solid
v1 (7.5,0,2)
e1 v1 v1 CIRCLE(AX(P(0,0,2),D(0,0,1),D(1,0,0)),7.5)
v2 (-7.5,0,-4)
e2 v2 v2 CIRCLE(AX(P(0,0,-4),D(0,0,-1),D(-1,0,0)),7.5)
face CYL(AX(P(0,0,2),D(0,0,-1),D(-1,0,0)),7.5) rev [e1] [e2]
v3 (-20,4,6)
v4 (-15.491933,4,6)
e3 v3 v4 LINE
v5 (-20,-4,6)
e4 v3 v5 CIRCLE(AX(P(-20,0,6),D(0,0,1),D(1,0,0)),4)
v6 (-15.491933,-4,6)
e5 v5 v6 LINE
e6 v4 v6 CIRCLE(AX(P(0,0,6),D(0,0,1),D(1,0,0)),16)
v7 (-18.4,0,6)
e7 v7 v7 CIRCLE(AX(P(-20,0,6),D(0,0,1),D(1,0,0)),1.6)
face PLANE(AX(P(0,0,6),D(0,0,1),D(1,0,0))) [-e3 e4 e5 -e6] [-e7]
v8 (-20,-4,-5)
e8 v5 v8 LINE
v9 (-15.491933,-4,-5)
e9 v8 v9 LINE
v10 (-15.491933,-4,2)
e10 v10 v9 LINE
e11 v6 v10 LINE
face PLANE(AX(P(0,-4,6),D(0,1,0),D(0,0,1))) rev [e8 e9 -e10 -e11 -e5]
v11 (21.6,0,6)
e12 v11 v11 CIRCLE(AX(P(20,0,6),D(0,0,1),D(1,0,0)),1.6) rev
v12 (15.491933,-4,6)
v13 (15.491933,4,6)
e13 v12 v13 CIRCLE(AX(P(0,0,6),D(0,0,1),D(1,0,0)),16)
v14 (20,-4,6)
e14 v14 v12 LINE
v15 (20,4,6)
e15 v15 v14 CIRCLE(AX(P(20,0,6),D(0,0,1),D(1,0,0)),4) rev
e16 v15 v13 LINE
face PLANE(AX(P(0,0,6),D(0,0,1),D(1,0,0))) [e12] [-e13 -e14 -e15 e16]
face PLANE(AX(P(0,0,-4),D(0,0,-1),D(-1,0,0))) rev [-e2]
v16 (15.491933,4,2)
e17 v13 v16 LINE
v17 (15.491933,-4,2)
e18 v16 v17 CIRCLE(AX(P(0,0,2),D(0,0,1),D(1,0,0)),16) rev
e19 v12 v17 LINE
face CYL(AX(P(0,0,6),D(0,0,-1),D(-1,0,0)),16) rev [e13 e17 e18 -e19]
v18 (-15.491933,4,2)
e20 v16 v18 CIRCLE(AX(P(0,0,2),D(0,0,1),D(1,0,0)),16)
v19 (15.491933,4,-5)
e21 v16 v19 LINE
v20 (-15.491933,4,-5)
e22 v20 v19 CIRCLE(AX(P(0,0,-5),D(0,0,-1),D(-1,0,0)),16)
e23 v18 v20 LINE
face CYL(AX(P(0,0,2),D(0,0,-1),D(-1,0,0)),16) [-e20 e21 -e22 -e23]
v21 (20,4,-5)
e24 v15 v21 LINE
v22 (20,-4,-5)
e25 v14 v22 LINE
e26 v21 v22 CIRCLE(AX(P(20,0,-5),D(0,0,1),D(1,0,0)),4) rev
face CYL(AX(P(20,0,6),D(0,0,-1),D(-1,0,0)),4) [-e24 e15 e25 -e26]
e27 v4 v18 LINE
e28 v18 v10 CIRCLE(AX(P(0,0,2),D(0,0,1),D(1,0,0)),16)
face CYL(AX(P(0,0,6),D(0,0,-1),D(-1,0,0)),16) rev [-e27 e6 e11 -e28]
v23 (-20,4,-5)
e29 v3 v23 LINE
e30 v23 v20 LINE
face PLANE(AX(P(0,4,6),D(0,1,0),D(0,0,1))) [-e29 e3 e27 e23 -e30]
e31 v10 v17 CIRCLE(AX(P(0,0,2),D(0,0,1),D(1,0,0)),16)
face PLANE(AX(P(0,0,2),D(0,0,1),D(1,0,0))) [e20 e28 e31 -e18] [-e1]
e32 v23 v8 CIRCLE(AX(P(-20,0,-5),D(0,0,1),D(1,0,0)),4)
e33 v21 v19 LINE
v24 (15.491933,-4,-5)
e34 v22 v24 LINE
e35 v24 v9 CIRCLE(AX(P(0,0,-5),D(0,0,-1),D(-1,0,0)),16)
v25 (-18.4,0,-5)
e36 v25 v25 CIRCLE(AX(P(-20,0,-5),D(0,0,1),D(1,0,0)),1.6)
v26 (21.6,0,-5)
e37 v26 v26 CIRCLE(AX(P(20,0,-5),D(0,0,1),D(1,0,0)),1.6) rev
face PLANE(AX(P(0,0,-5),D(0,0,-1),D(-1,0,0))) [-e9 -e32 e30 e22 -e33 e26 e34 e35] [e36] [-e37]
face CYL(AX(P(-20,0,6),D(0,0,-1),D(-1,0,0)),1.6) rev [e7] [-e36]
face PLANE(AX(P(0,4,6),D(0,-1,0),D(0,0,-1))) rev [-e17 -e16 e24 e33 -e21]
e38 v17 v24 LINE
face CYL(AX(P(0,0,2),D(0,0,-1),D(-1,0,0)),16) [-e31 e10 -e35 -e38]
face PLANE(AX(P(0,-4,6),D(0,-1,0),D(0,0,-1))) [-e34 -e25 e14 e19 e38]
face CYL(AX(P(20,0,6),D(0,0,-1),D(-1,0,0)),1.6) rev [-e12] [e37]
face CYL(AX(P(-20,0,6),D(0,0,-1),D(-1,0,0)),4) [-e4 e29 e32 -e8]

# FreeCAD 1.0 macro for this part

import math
import FreeCAD as App
import Part
import Sketcher
from FreeCAD import Vector

doc = App.newDocument("Part")
body = doc.addObject("PartDesign::Body", "Body")

sketch1 = doc.addObject("Sketcher::SketchObject", "Sketch")
body.addObject(sketch1)
sketch1.AttachmentSupport = (doc.XY_Plane, [""])
sketch1.MapMode = "FlatFace"
sketch1.addGeometry(Part.ArcOfCircle(Part.Circle(Vector(0, 0, 0), Vector(0, 0, 1), 16), math.radians(14.477512), math.radians(90)), False)
sketch1.addGeometry(Part.ArcOfCircle(Part.Circle(Vector(0, 0, 0), Vector(0, 0, 1), 16), math.radians(90), math.radians(165.522488)), False)
sketch1.addGeometry(Part.ArcOfCircle(Part.Circle(Vector(0, 0, 0), Vector(0, 0, 1), 16), math.radians(165.522488), math.radians(194.477512)), False)
sketch1.addGeometry(Part.ArcOfCircle(Part.Circle(Vector(0, 0, 0), Vector(0, 0, 1), 16), math.radians(-165.522488), math.radians(-14.477512)), False)
sketch1.addGeometry(Part.ArcOfCircle(Part.Circle(Vector(0, 0, 0), Vector(0, 0, 1), 16), math.radians(-14.477512), math.radians(0)), False)
sketch1.addGeometry(Part.ArcOfCircle(Part.Circle(Vector(0, 0, 0), Vector(0, 0, 1), 16), math.radians(0), math.radians(14.477512)), False)
sketch1.addGeometry(Part.ArcOfCircle(Part.Circle(Vector(0, 0, 0), Vector(0, 0, 1), 7.5), math.radians(0), math.radians(90)), False)
sketch1.addGeometry(Part.ArcOfCircle(Part.Circle(Vector(0, 0, 0), Vector(0, 0, 1), 7.5), math.radians(90), math.radians(360)), False)
sketch1.addConstraint(Sketcher.Constraint("Tangent", 0, 2, 1, 1))
sketch1.addConstraint(Sketcher.Constraint("Tangent", 1, 2, 2, 1))
sketch1.addConstraint(Sketcher.Constraint("Tangent", 2, 2, 3, 1))
sketch1.addConstraint(Sketcher.Constraint("Tangent", 3, 2, 4, 1))
sketch1.addConstraint(Sketcher.Constraint("Tangent", 4, 2, 5, 1))
sketch1.addConstraint(Sketcher.Constraint("Tangent", 5, 2, 0, 1))
sketch1.addConstraint(Sketcher.Constraint("Tangent", 6, 1, 7, 2))
sketch1.addConstraint(Sketcher.Constraint("Coincident", 7, 1, 6, 2))
sketch1.addConstraint(Sketcher.Constraint("Coincident", 0, 3, -1, 1))
sketch1.addConstraint(Sketcher.Constraint("Coincident", 2, 3, -1, 1))
sketch1.addConstraint(Sketcher.Constraint("Coincident", 6, 3, -1, 1))
sketch1.addConstraint(Sketcher.Constraint("Equal", 2, 3))
sketch1.addConstraint(Sketcher.Constraint("PointOnObject", 0, 2, -2))
sketch1.addConstraint(Sketcher.Constraint("PointOnObject", 4, 2, -1))
sketch1.addConstraint(Sketcher.Constraint("PointOnObject", 6, 1, -1))
sketch1.addConstraint(Sketcher.Constraint("PointOnObject", 7, 1, -2))
sketch1.addConstraint(Sketcher.Constraint("Horizontal", 2, 2, 3, 2))
sketch1.addConstraint(Sketcher.Constraint("Horizontal", 1, 2, 5, 2))
sketch1.addConstraint(Sketcher.Constraint("Vertical", 1, 2, 2, 2))
sketch1.addConstraint(Sketcher.Constraint("Radius", 0, 16.0))
sketch1.addConstraint(Sketcher.Constraint("Radius", 6, 7.5))
sketch1.addConstraint(Sketcher.Constraint("DistanceY", -1, 1, 1, 2, 4.0))
pad1 = doc.addObject("PartDesign::Pad", "Pad")
body.addObject(pad1)
pad1.Profile = sketch1
pad1.Length = 2

sketch2 = doc.addObject("Sketcher::SketchObject", "Sketch001")
body.addObject(sketch2)
sketch2.AttachmentSupport = (doc.XY_Plane, [""])
sketch2.MapMode = "FlatFace"
sketch2.addGeometry(Part.LineSegment(Vector(-20, -4, 0), Vector(-15.491933, -4, 0)), False)
sketch2.addGeometry(Part.ArcOfCircle(Part.Circle(Vector(0, 0, 0), Vector(0, 0, 1), 16), math.radians(165.522488), math.radians(194.477512)), False)
sketch2.addGeometry(Part.LineSegment(Vector(-15.491933, 4, 0), Vector(-20, 4, 0)), False)
sketch2.addGeometry(Part.ArcOfCircle(Part.Circle(Vector(-20, 0, 0), Vector(0, 0, 1), 4), math.radians(90), math.radians(270)), False)
sketch2.addGeometry(Part.Circle(Vector(-20, 0, 0), Vector(0, 0, 1), 1.6), False)
sketch2.addGeometry(Part.LineSegment(Vector(15.491933, -4, 0), Vector(20, -4, 0)), False)
sketch2.addGeometry(Part.ArcOfCircle(Part.Circle(Vector(20, 0, 0), Vector(0, 0, 1), 4), math.radians(-90), math.radians(90)), False)
sketch2.addGeometry(Part.LineSegment(Vector(20, 4, 0), Vector(15.491933, 4, 0)), False)
sketch2.addGeometry(Part.ArcOfCircle(Part.Circle(Vector(0, 0, 0), Vector(0, 0, 1), 16), math.radians(0), math.radians(14.477512)), False)
sketch2.addGeometry(Part.ArcOfCircle(Part.Circle(Vector(0, 0, 0), Vector(0, 0, 1), 16), math.radians(-14.477512), math.radians(0)), False)
sketch2.addGeometry(Part.Circle(Vector(20, 0, 0), Vector(0, 0, 1), 1.6), False)
sketch2.addConstraint(Sketcher.Constraint("Coincident", 0, 2, 1, 2))
sketch2.addConstraint(Sketcher.Constraint("Coincident", 1, 1, 2, 1))
sketch2.addConstraint(Sketcher.Constraint("Tangent", 2, 2, 3, 1))
sketch2.addConstraint(Sketcher.Constraint("Tangent", 3, 2, 0, 1))
sketch2.addConstraint(Sketcher.Constraint("Tangent", 5, 2, 6, 1))
sketch2.addConstraint(Sketcher.Constraint("Tangent", 6, 2, 7, 1))
sketch2.addConstraint(Sketcher.Constraint("Coincident", 7, 2, 8, 2))
sketch2.addConstraint(Sketcher.Constraint("Tangent", 8, 1, 9, 2))
sketch2.addConstraint(Sketcher.Constraint("Coincident", 9, 1, 5, 1))
sketch2.addConstraint(Sketcher.Constraint("Horizontal", 0))
sketch2.addConstraint(Sketcher.Constraint("Horizontal", 2))
sketch2.addConstraint(Sketcher.Constraint("Horizontal", 5))
sketch2.addConstraint(Sketcher.Constraint("Horizontal", 7))
sketch2.addConstraint(Sketcher.Constraint("Coincident", 1, 3, -1, 1))
sketch2.addConstraint(Sketcher.Constraint("Coincident", 8, 3, -1, 1))
sketch2.addConstraint(Sketcher.Constraint("Coincident", 4, 3, 3, 3))
sketch2.addConstraint(Sketcher.Constraint("Coincident", 10, 3, 6, 3))
sketch2.addConstraint(Sketcher.Constraint("Equal", 3, 6))
sketch2.addConstraint(Sketcher.Constraint("Equal", 1, 8))
sketch2.addConstraint(Sketcher.Constraint("Equal", 8, 9))
sketch2.addConstraint(Sketcher.Constraint("Equal", 4, 10))
sketch2.addConstraint(Sketcher.Constraint("Symmetric", 3, 3, 6, 3, -1, 1))
sketch2.addConstraint(Sketcher.Constraint("PointOnObject", 3, 3, -1))
sketch2.addConstraint(Sketcher.Constraint("PointOnObject", 8, 1, -1))
sketch2.addConstraint(Sketcher.Constraint("Radius", 1, 16.0))
sketch2.addConstraint(Sketcher.Constraint("Radius", 3, 4.0))
sketch2.addConstraint(Sketcher.Constraint("Diameter", 4, 3.2))
sketch2.addConstraint(Sketcher.Constraint("DistanceX", 3, 3, -1, 1, 20.0))
pad2 = doc.addObject("PartDesign::Pad", "Pad001")
body.addObject(pad2)
pad2.Profile = sketch2
pad2.Length = 6

sketch3 = doc.addObject("Sketcher::SketchObject", "Sketch002")
body.addObject(sketch3)
sketch3.AttachmentSupport = (doc.XY_Plane, [""])
sketch3.MapMode = "FlatFace"
sketch3.AttachmentOffset = App.Placement(Vector(0, 0, -4), App.Rotation())
sketch3.addGeometry(Part.Circle(Vector(0, 0, 0), Vector(0, 0, 1), 16), False)
sketch3.addGeometry(Part.Circle(Vector(0, 0, 0), Vector(0, 0, 1), 7.5), False)
sketch3.addConstraint(Sketcher.Constraint("Coincident", 0, 3, -1, 1))
sketch3.addConstraint(Sketcher.Constraint("Coincident", 1, 3, -1, 1))
sketch3.addConstraint(Sketcher.Constraint("Diameter", 0, 32.0))
sketch3.addConstraint(Sketcher.Constraint("Diameter", 1, 15.0))
pad3 = doc.addObject("PartDesign::Pad", "Pad002")
body.addObject(pad3)
pad3.Profile = sketch3
pad3.Length = 4

sketch4 = doc.addObject("Sketcher::SketchObject", "Sketch003")
body.addObject(sketch4)
sketch4.AttachmentSupport = (doc.XY_Plane, [""])
sketch4.MapMode = "FlatFace"
sketch4.AttachmentOffset = App.Placement(Vector(0, 0, -5), App.Rotation())
sketch4.addGeometry(Part.Circle(Vector(0, 0, 0), Vector(0, 0, 1), 16), False)
sketch4.addConstraint(Sketcher.Constraint("Coincident", 0, 3, -1, 1))
sketch4.addConstraint(Sketcher.Constraint("Diameter", 0, 32.0))
pad4 = doc.addObject("PartDesign::Pad", "Pad003")
body.addObject(pad4)
pad4.Profile = sketch4
pad4.Length = 1

sketch5 = doc.addObject("Sketcher::SketchObject", "Sketch004")
body.addObject(sketch5)
sketch5.AttachmentSupport = (doc.XY_Plane, [""])
sketch5.MapMode = "FlatFace"
sketch5.AttachmentOffset = App.Placement(Vector(0, 0, -5), App.Rotation())
sketch5.addGeometry(Part.LineSegment(Vector(15.491933, -4, 0), Vector(20, -4, 0)), False)
sketch5.addGeometry(Part.ArcOfCircle(Part.Circle(Vector(20, 0, 0), Vector(0, 0, 1), 4), math.radians(-90), math.radians(90)), False)
sketch5.addGeometry(Part.LineSegment(Vector(20, 4, 0), Vector(15.491933, 4, 0)), False)
sketch5.addGeometry(Part.ArcOfCircle(Part.Circle(Vector(0, 0, 0), Vector(0, 0, 1), 16), math.radians(0), math.radians(14.477512)), False)
sketch5.addGeometry(Part.ArcOfCircle(Part.Circle(Vector(0, 0, 0), Vector(0, 0, 1), 16), math.radians(-14.477512), math.radians(0)), False)
sketch5.addGeometry(Part.Circle(Vector(20, 0, 0), Vector(0, 0, 1), 1.6), False)
sketch5.addGeometry(Part.LineSegment(Vector(-20, -4, 0), Vector(-15.491933, -4, 0)), False)
sketch5.addGeometry(Part.ArcOfCircle(Part.Circle(Vector(0, 0, 0), Vector(0, 0, 1), 16), math.radians(165.522488), math.radians(194.477512)), False)
sketch5.addGeometry(Part.LineSegment(Vector(-15.491933, 4, 0), Vector(-20, 4, 0)), False)
sketch5.addGeometry(Part.ArcOfCircle(Part.Circle(Vector(-20, 0, 0), Vector(0, 0, 1), 4), math.radians(90), math.radians(270)), False)
sketch5.addGeometry(Part.Circle(Vector(-20, 0, 0), Vector(0, 0, 1), 1.6), False)
sketch5.addConstraint(Sketcher.Constraint("Tangent", 0, 2, 1, 1))
sketch5.addConstraint(Sketcher.Constraint("Tangent", 1, 2, 2, 1))
sketch5.addConstraint(Sketcher.Constraint("Coincident", 2, 2, 3, 2))
sketch5.addConstraint(Sketcher.Constraint("Tangent", 3, 1, 4, 2))
sketch5.addConstraint(Sketcher.Constraint("Coincident", 4, 1, 0, 1))
sketch5.addConstraint(Sketcher.Constraint("Coincident", 6, 2, 7, 2))
sketch5.addConstraint(Sketcher.Constraint("Coincident", 7, 1, 8, 1))
sketch5.addConstraint(Sketcher.Constraint("Tangent", 8, 2, 9, 1))
sketch5.addConstraint(Sketcher.Constraint("Tangent", 9, 2, 6, 1))
sketch5.addConstraint(Sketcher.Constraint("Horizontal", 0))
sketch5.addConstraint(Sketcher.Constraint("Horizontal", 2))
sketch5.addConstraint(Sketcher.Constraint("Horizontal", 6))
sketch5.addConstraint(Sketcher.Constraint("Horizontal", 8))
sketch5.addConstraint(Sketcher.Constraint("Coincident", 3, 3, -1, 1))
sketch5.addConstraint(Sketcher.Constraint("Coincident", 7, 3, -1, 1))
sketch5.addConstraint(Sketcher.Constraint("Coincident", 5, 3, 1, 3))
sketch5.addConstraint(Sketcher.Constraint("Coincident", 10, 3, 9, 3))
sketch5.addConstraint(Sketcher.Constraint("Equal", 3, 4))
sketch5.addConstraint(Sketcher.Constraint("Equal", 4, 7))
sketch5.addConstraint(Sketcher.Constraint("Equal", 1, 9))
sketch5.addConstraint(Sketcher.Constraint("Equal", 5, 10))
sketch5.addConstraint(Sketcher.Constraint("Symmetric", 1, 3, 9, 3, -1, 1))
sketch5.addConstraint(Sketcher.Constraint("PointOnObject", 1, 3, -1))
sketch5.addConstraint(Sketcher.Constraint("PointOnObject", 3, 1, -1))
sketch5.addConstraint(Sketcher.Constraint("Radius", 1, 4.0))
sketch5.addConstraint(Sketcher.Constraint("Radius", 3, 16.0))
sketch5.addConstraint(Sketcher.Constraint("Diameter", 5, 3.2))
sketch5.addConstraint(Sketcher.Constraint("DistanceX", -1, 1, 1, 3, 20.0))
pad5 = doc.addObject("PartDesign::Pad", "Pad004")
body.addObject(pad5)
pad5.Profile = sketch5
pad5.Length = 5

doc.recompute()
